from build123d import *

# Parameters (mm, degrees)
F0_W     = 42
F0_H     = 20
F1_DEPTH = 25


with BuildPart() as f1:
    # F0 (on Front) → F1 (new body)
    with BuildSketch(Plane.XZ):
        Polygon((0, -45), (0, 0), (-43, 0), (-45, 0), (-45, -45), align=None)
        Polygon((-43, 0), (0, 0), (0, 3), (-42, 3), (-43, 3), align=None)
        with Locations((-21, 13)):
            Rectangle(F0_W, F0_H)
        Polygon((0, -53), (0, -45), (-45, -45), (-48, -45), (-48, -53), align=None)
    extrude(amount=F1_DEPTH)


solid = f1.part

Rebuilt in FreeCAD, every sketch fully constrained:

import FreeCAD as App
import Part
import Sketcher
from FreeCAD import Vector
Q = App.Units.Quantity


def add_polygon(sketch, points):
    """Adds a closed chain of lines whose ends are joined by coincident constraints."""
    first, n = sketch.GeometryCount, len(points)
    for a, b in zip(points, points[1:] + points[:1]):
        sketch.addGeometry(Part.LineSegment(App.Vector(*a, 0), App.Vector(*b, 0)), False)
    for i in range(n):
        sketch.addConstraint(Sketcher.Constraint("Coincident", first + i, 2, first + (i + 1) % n, 1))

doc = App.newDocument("Part")
body = doc.addObject("PartDesign::Body", "Body")

# Sketch on XZ plane
sketch1 = doc.addObject("Sketcher::SketchObject", "Sketch")
body.addObject(sketch1)
sketch1.AttachmentSupport = (doc.XZ_Plane, [""])
sketch1.MapMode = "FlatFace"
add_polygon(sketch1, [(0, 23), (-42, 23), (-42, 3), (-43, 3), (-43, 0), (-45, 0), (-45, -45), (-48, -45), (-48, -53), (0, -53)])  # lines 0-9
sketch1.addConstraint(Sketcher.Constraint("Horizontal", 0))
sketch1.addConstraint(Sketcher.Constraint("Vertical", 1))
sketch1.addConstraint(Sketcher.Constraint("Horizontal", 2))
sketch1.addConstraint(Sketcher.Constraint("Vertical", 3))
sketch1.addConstraint(Sketcher.Constraint("Horizontal", 4))
sketch1.addConstraint(Sketcher.Constraint("Vertical", 5))
sketch1.addConstraint(Sketcher.Constraint("Horizontal", 6))
sketch1.addConstraint(Sketcher.Constraint("Vertical", 7))
sketch1.addConstraint(Sketcher.Constraint("Horizontal", 8))
sketch1.addConstraint(Sketcher.Constraint("Vertical", 9))
sketch1.addConstraint(Sketcher.Constraint("PointOnObject", 3, 2, -1))
sketch1.addConstraint(Sketcher.Constraint("PointOnObject", 8, 2, -2))
sketch1.addConstraint(Sketcher.Constraint("Equal", 6, 3))
sketch1.addConstraint(Sketcher.Constraint("DistanceX", 0, 2, 0, 1, Q("42 mm")))
sketch1.addConstraint(Sketcher.Constraint("DistanceX", 2, 2, 2, 1, Q("1 mm")))
sketch1.addConstraint(Sketcher.Constraint("DistanceX", 4, 2, 4, 1, Q("2 mm")))
sketch1.addConstraint(Sketcher.Constraint("DistanceX", 6, 2, 6, 1, Q("3 mm")))
sketch1.addConstraint(Sketcher.Constraint("DistanceY", 1, 2, 1, 1, Q("20 mm")))
sketch1.addConstraint(Sketcher.Constraint("DistanceY", 5, 2, 5, 1, Q("45 mm")))
sketch1.addConstraint(Sketcher.Constraint("DistanceY", 7, 2, 7, 1, Q("8 mm")))
pad1 = doc.addObject("PartDesign::Pad", "Pad")
body.addObject(pad1)
pad1.Profile = sketch1
pad1.Length = 25

doc.recompute()
